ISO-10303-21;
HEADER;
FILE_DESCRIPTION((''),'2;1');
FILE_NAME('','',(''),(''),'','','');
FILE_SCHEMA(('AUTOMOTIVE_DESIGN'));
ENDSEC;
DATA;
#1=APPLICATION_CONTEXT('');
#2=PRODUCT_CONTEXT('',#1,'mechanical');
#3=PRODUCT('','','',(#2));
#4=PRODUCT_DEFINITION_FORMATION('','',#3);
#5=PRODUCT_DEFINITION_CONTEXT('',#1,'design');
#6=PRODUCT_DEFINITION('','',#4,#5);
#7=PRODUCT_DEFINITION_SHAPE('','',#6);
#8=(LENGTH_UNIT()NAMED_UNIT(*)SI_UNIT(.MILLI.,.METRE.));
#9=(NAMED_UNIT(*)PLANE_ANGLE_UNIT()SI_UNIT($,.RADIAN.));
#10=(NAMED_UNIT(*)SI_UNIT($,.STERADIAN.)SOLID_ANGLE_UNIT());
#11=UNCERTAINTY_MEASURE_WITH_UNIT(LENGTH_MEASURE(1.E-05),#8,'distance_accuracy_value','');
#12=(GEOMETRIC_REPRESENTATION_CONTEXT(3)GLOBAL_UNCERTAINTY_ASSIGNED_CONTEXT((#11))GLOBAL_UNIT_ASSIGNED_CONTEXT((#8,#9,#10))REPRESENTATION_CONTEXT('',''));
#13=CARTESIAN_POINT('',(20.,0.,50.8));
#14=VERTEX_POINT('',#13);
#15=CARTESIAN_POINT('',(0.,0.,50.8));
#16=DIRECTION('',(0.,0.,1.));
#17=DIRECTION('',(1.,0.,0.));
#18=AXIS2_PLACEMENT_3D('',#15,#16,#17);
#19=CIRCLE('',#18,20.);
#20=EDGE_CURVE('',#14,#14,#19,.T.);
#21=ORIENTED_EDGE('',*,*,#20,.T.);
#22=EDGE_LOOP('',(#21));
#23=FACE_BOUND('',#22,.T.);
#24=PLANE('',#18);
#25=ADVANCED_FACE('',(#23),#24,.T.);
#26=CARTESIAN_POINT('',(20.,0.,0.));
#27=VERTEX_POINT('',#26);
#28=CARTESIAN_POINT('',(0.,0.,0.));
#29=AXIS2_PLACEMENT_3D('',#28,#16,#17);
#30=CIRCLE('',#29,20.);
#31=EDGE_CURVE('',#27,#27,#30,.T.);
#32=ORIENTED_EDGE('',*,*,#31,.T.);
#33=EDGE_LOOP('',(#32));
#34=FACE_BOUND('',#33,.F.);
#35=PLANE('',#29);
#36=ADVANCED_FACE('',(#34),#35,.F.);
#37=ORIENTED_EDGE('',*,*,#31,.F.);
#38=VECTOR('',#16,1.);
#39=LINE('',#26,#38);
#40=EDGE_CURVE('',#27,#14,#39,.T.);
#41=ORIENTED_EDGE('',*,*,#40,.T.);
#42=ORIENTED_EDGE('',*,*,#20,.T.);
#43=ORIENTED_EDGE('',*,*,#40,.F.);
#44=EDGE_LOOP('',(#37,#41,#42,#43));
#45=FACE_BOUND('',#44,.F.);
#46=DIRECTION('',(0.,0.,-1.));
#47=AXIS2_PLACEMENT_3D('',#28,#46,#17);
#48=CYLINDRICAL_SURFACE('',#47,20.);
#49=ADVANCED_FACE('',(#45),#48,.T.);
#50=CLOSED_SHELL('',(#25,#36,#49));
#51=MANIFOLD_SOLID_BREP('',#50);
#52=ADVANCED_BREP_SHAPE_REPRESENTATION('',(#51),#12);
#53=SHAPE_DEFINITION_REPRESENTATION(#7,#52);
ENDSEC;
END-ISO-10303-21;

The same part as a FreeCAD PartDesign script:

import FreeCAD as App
import Part
import Sketcher

V = App.Vector
Q = App.Units.Quantity

doc = App.newDocument("Part")
body = doc.addObject("PartDesign::Body", "Body")

# Sketch on XY plane
sketch1 = doc.addObject("Sketcher::SketchObject", "Sketch")
body.addObject(sketch1)
sketch1.AttachmentSupport = (doc.XY_Plane, [""])
sketch1.MapMode = "FlatFace"
sketch1.addGeometry(Part.Circle(V(0, 0, 0), V(0, 0, 1), 20), False)
sketch1.addConstraint([
    Sketcher.Constraint("Coincident", 0, 3, -1, 1),
    Sketcher.Constraint("Diameter", 0, Q("1.5748 in")),
])
pad1 = doc.addObject("PartDesign::Pad", "Pad")
body.addObject(pad1)
pad1.Profile = sketch1
pad1.Length = Q("2 in")

doc.recompute()
